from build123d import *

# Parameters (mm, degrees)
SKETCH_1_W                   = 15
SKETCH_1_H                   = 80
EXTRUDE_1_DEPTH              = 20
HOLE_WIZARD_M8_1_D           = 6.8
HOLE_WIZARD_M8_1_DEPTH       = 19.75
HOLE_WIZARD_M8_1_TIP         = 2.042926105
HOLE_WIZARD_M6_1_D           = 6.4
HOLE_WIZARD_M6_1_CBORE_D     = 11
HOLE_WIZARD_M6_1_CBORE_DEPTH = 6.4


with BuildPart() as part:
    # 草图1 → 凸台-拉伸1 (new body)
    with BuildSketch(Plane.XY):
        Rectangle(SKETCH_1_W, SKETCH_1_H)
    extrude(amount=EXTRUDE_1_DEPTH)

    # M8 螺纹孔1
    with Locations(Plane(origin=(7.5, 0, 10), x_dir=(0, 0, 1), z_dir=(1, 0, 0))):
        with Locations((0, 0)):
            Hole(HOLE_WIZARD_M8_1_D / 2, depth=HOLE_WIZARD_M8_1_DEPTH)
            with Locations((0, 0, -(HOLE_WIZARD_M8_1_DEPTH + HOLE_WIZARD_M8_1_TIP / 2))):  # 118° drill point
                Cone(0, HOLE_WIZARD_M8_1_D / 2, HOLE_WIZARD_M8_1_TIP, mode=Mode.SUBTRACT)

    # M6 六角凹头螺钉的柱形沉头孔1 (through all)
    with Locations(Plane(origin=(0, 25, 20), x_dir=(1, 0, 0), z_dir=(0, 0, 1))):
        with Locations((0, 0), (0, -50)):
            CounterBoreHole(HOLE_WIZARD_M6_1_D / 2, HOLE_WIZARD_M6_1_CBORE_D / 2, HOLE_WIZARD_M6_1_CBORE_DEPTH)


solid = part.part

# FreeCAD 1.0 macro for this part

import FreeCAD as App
import Part
import Sketcher
Q = App.Units.Quantity


def add_polygon(sketch, points):
    """Adds a closed chain of lines whose ends are joined by coincident constraints."""
    first, n = sketch.GeometryCount, len(points)
    for a, b in zip(points, points[1:] + points[:1]):
        sketch.addGeometry(Part.LineSegment(App.Vector(*a, 0), App.Vector(*b, 0)), False)
    for i in range(n):
        sketch.addConstraint(Sketcher.Constraint("Coincident", first + i, 2, first + (i + 1) % n, 1))

doc = App.newDocument("Part")
body = doc.addObject("PartDesign::Body", "Body")

sketch1 = body.newObject("Sketcher::SketchObject", "Sketch")
sketch1.AttachmentSupport = (doc.getObject("XY_Plane"), [""])
sketch1.MapMode = "FlatFace"
add_polygon(sketch1, [(-8, 40), (-8, -40), (8, -40), (8, 40)])
sketch1.addConstraint([
    Sketcher.Constraint("Vertical", 0),
    Sketcher.Constraint("Horizontal", 1),
    Sketcher.Constraint("Vertical", 2),
    Sketcher.Constraint("Horizontal", 3),
    Sketcher.Constraint("Symmetric", 0, 2, 2, 2, -1, 1),
    Sketcher.Constraint("DistanceX", 1, 1, 1, 2, Q("15 mm")),
    Sketcher.Constraint("DistanceY", 0, 2, 0, 1, Q("80 mm")),
])
pad1 = body.newObject("PartDesign::Pad", "Pad")
pad1.Profile = sketch1
pad1.Length = 20

sketch2 = body.newObject("Sketcher::SketchObject", "Sketch001")
sketch2.AttachmentSupport = (doc.getObject("YZ_Plane"), [""])
sketch2.MapMode = "FlatFace"
sketch2.AttachmentOffset = App.Placement(App.Vector(0, 0, 7.5), App.Rotation())
sketch2.addGeometry(Part.Circle(App.Vector(0, 10, 0), App.Vector(0, 0, 1), 3.4), False)
sketch2.addConstraint([
    Sketcher.Constraint("PointOnObject", 0, 3, -2),
    Sketcher.Constraint("Diameter", 0, Q("6.8 mm")),
    Sketcher.Constraint("DistanceY", -1, 1, 0, 3, Q("10 mm")),
])
doc.recompute()
hole = body.newObject("PartDesign::Hole", "Hole")
hole.Profile = sketch2
hole.ThreadType = "None"
hole.Diameter = 6.8
hole.DepthType = "Dimension"
hole.Depth = 19.75
hole.DrillPoint = "Angled"
hole.DrillPointAngle = 118

sketch3 = body.newObject("Sketcher::SketchObject", "Sketch002")
sketch3.AttachmentSupport = (doc.getObject("XY_Plane"), [""])
sketch3.MapMode = "FlatFace"
sketch3.AttachmentOffset = App.Placement(App.Vector(0, 0, 20), App.Rotation())
sketch3.addGeometry([
    Part.Circle(App.Vector(0, 25, 0), App.Vector(0, 0, 1), 3.2),
    Part.Circle(App.Vector(0, -25, 0), App.Vector(0, 0, 1), 3.2),
], False)
sketch3.addConstraint([
    Sketcher.Constraint("Equal", 0, 1),
    Sketcher.Constraint("Symmetric", 0, 3, 1, 3, -1, 1),
    Sketcher.Constraint("PointOnObject", 0, 3, -2),
    Sketcher.Constraint("Diameter", 0, Q("6.4 mm")),
    Sketcher.Constraint("DistanceY", -1, 1, 0, 3, Q("25 mm")),
])
doc.recompute()
hole2 = body.newObject("PartDesign::Hole", "Hole001")
hole2.Profile = sketch3
hole2.ThreadType = "None"
hole2.Diameter = 6.4
hole2.DepthType = "ThroughAll"
hole2.HoleCutType = "Counterbore"
hole2.HoleCutDiameter = 11
hole2.HoleCutDepth = 6.4

doc.recompute()
